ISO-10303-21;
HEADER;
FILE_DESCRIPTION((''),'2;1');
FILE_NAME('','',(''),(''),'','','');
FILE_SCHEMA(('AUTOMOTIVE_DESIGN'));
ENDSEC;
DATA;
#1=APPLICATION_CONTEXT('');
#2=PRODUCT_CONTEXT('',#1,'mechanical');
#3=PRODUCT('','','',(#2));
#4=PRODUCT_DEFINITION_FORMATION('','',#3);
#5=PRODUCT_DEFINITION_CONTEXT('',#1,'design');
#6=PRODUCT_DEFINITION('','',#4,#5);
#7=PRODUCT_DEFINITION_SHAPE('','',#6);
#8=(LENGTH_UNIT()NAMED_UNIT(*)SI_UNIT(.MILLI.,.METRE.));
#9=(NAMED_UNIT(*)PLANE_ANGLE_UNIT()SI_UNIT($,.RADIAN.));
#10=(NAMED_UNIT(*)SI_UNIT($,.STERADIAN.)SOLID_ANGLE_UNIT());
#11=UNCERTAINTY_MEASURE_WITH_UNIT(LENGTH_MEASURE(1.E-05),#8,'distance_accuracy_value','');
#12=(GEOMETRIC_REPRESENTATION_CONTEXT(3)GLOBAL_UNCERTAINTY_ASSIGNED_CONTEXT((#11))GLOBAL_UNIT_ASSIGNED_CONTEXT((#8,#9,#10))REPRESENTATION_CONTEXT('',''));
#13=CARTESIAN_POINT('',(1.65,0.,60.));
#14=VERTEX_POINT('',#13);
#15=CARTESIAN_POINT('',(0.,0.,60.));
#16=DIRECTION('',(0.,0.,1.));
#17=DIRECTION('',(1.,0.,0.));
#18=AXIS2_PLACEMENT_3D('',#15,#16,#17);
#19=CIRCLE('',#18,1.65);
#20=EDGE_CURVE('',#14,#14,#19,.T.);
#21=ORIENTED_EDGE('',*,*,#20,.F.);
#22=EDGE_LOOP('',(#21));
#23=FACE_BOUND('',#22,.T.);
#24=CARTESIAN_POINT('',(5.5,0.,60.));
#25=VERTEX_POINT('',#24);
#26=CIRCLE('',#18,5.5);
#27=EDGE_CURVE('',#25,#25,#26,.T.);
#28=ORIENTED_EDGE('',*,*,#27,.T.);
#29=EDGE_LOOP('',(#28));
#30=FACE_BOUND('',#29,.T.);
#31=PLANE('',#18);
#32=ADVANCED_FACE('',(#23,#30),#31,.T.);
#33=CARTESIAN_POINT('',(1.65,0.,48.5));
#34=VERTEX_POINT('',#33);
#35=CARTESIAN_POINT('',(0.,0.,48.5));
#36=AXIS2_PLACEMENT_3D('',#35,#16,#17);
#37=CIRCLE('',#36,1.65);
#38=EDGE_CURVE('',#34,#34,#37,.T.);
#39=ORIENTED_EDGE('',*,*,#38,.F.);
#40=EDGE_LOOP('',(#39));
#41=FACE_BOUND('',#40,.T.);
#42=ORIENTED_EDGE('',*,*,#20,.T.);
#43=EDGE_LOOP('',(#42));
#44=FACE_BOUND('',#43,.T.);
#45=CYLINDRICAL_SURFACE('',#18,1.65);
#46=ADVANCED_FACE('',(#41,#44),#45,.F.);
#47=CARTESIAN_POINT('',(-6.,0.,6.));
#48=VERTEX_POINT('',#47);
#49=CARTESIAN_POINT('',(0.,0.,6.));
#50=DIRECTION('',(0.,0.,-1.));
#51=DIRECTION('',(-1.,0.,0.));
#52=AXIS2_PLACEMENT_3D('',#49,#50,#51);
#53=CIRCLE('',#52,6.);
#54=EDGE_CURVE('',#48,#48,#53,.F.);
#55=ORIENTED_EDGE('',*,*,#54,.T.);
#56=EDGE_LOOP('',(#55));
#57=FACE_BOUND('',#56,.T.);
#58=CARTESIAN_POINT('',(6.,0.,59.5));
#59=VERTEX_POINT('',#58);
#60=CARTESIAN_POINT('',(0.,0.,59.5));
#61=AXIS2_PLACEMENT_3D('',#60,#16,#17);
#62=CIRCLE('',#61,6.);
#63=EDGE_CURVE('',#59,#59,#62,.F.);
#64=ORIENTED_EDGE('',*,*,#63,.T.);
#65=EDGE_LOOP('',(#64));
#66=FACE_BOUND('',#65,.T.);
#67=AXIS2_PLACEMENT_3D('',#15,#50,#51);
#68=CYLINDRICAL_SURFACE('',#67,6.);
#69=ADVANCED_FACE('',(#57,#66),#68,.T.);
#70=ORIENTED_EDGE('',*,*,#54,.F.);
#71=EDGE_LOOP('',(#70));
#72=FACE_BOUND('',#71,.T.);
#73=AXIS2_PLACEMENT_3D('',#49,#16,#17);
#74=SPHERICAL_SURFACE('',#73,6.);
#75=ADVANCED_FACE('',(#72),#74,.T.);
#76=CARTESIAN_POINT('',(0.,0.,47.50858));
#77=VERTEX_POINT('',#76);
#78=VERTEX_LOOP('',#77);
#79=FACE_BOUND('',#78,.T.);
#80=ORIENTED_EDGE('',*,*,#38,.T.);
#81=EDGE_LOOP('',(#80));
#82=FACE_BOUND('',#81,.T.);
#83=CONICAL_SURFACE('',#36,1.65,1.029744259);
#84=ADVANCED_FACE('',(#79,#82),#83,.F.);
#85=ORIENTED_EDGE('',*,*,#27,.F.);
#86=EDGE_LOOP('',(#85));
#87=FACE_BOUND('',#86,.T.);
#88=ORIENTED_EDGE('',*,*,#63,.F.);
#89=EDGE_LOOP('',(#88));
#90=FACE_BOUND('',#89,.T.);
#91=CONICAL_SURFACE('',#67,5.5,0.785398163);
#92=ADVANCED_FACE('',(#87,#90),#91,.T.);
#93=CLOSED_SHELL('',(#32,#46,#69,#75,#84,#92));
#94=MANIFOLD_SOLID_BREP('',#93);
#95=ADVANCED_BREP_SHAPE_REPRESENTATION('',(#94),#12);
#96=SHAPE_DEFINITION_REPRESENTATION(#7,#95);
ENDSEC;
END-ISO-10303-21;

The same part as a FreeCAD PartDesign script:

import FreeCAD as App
import Part
import Sketcher


def edges_at(feature, points):
    """Names of the edges that pass closest to the given points."""
    edges = feature.Shape.Edges
    near = lambda p: min(range(len(edges)), key=lambda i: edges[i].distToShape(Part.Vertex(*p))[0])
    return sorted({f"Edge{near(p) + 1}" for p in points})

doc = App.newDocument("Part")
body = doc.addObject("PartDesign::Body", "Body")

# Sketch on XY plane
sketch1 = body.newObject("Sketcher::SketchObject", "Sketch")
sketch1.AttachmentSupport = (doc.getObject("XY_Plane"), [""])
sketch1.MapMode = "FlatFace"
sketch1.addGeometry(Part.Circle(App.Vector(0, 0, 0), App.Vector(0, 0, 1), 6), False)
sketch1.addConstraint([
    Sketcher.Constraint("Coincident", 0, 3, -1, 1),
    Sketcher.Constraint("Diameter", 0, 12.0),
])
pad1 = body.newObject("PartDesign::Pad", "Pad")
pad1.Profile = sketch1
pad1.Length = 60
doc.recompute()

fillet = body.newObject("PartDesign::Fillet", "Fillet")
fillet.Base = (pad1, edges_at(pad1, [(-6, 0, 0)]))
fillet.Radius = 6
doc.recompute()

chamfer = body.newObject("PartDesign::Chamfer", "Chamfer")
chamfer.Base = (fillet, edges_at(fillet, [(-6, 0, 60)]))
chamfer.Size = 0.5

# Sketch on XY plane
sketch2 = body.newObject("Sketcher::SketchObject", "Sketch001")
sketch2.AttachmentSupport = (doc.getObject("XY_Plane"), [""])
sketch2.MapMode = "FlatFace"
sketch2.AttachmentOffset = App.Placement(App.Vector(0, 0, 60), App.Rotation())
sketch2.addGeometry(Part.Circle(App.Vector(0, 0, 0), App.Vector(0, 0, 1), 1.6), False)
sketch2.addConstraint([
    Sketcher.Constraint("Coincident", 0, 3, -1, 1),
    Sketcher.Constraint("Diameter", 0, 3.3),
])
doc.recompute()
hole = body.newObject("PartDesign::Hole", "Hole")
hole.Profile = sketch2
hole.ThreadType = "None"
hole.Diameter = 3.3
hole.DepthType = "Dimension"
hole.Depth = 11.5
hole.DrillPoint = "Angled"
hole.DrillPointAngle = 118

doc.recompute()
